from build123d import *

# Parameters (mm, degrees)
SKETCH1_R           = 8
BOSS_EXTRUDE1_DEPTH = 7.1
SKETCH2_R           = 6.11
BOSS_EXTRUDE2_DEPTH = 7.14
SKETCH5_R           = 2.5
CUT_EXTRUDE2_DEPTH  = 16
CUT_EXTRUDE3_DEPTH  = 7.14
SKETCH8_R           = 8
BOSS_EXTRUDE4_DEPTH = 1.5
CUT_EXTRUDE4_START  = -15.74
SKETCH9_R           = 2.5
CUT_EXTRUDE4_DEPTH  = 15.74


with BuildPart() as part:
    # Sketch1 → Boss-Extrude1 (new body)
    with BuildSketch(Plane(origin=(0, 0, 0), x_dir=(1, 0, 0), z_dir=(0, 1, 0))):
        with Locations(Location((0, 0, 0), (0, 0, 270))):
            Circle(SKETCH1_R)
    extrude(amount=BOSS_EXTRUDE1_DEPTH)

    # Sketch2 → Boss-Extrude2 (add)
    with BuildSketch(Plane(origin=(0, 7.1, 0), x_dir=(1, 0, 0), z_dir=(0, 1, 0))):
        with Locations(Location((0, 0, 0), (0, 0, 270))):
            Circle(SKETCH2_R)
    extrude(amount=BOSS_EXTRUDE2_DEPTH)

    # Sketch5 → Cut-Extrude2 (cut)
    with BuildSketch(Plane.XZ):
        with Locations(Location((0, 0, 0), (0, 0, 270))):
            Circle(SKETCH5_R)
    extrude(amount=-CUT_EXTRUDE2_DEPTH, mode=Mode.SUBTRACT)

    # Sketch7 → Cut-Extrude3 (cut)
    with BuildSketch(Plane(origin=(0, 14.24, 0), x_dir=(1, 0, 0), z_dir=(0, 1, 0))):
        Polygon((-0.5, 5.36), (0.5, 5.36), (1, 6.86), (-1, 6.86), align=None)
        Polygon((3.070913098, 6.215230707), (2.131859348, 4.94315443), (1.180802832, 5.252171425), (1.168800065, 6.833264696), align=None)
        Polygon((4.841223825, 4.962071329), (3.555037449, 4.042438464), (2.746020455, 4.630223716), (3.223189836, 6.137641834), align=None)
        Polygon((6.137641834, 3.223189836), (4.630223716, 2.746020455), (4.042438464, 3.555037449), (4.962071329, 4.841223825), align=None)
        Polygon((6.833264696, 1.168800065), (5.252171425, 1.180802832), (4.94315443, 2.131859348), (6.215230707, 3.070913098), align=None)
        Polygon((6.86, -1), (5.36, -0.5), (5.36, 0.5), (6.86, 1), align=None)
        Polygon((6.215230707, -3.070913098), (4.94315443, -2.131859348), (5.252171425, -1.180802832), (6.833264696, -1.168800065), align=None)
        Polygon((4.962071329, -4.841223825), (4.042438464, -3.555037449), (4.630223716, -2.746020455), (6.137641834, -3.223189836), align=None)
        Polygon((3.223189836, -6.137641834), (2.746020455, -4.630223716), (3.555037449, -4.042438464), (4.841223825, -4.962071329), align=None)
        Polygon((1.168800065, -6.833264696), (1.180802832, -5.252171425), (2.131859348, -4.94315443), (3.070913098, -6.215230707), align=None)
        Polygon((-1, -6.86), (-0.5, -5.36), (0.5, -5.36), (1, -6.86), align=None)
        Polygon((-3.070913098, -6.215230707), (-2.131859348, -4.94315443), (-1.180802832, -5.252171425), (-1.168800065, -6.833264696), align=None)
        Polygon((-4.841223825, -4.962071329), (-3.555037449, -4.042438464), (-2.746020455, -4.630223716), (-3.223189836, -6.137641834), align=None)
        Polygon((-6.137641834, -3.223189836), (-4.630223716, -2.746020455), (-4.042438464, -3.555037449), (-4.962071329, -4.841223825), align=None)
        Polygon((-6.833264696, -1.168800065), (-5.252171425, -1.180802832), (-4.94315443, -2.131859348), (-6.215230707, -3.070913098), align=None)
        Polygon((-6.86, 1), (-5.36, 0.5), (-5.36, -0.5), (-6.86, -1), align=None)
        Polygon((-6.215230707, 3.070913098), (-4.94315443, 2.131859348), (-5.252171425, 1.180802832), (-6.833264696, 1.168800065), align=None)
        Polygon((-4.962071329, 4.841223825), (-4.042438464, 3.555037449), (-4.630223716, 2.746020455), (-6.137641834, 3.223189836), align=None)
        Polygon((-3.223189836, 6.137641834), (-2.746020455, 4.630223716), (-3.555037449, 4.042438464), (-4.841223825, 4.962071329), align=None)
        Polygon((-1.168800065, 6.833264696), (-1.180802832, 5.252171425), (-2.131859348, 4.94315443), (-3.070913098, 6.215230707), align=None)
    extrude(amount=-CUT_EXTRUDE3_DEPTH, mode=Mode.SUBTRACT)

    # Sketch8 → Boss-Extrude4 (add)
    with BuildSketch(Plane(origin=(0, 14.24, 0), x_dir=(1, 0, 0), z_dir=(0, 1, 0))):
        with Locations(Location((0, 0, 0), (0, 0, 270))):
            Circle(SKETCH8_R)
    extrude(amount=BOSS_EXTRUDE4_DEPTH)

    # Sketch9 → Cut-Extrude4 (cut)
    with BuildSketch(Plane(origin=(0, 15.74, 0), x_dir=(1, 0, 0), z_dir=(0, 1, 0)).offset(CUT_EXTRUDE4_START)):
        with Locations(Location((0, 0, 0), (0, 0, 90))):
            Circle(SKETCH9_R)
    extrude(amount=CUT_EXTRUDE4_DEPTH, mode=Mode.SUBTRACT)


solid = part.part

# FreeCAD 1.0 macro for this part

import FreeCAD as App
import Part
import Sketcher
from FreeCAD import Vector
Q = App.Units.Quantity

doc = App.newDocument("Part")
body = doc.addObject("PartDesign::Body", "Body")

sketch1 = body.newObject("Sketcher::SketchObject", "Sketch")
sketch1.AttachmentSupport = (doc.getObject("XZ_Plane"), [""])
sketch1.MapMode = "FlatFace"
sketch1.addGeometry(Part.Circle(Vector(0, 0, 0), Vector(0, 0, 1), 8), False)
sketch1.addConstraint(Sketcher.Constraint("Coincident", 0, 3, -1, 1))
sketch1.addConstraint(Sketcher.Constraint("Diameter", 0, Q("16 mm")))
pad1 = body.newObject("PartDesign::Pad", "Pad")
pad1.Profile = sketch1
pad1.Length = 7.1
pad1.Reversed = True

sketch2 = body.newObject("Sketcher::SketchObject", "Sketch001")
sketch2.AttachmentSupport = (doc.getObject("XZ_Plane"), [""])
sketch2.MapMode = "FlatFace"
sketch2.AttachmentOffset = App.Placement(Vector(0, 0, -7.1), App.Rotation())
sketch2.addGeometry(Part.Circle(Vector(0, 0, 0), Vector(0, 0, 1), 6), False)
sketch2.addConstraint(Sketcher.Constraint("Coincident", 0, 3, -1, 1))
sketch2.addConstraint(Sketcher.Constraint("Diameter", 0, Q("12.22 mm")))
pad2 = body.newObject("PartDesign::Pad", "Pad001")
pad2.Profile = sketch2
pad2.Length = 7.14
pad2.Reversed = True

sketch3 = body.newObject("Sketcher::SketchObject", "Sketch002")
sketch3.AttachmentSupport = (doc.getObject("XZ_Plane"), [""])
sketch3.MapMode = "FlatFace"
sketch3.addGeometry(Part.Circle(Vector(0, 0, 0), Vector(0, 0, 1), 2.5), False)
sketch3.addConstraint(Sketcher.Constraint("Coincident", 0, 3, -1, 1))
sketch3.addConstraint(Sketcher.Constraint("Diameter", 0, Q("5 mm")))
pocket1 = body.newObject("PartDesign::Pocket", "Pocket")
pocket1.Profile = sketch3
pocket1.Length = 16

sketch4 = body.newObject("Sketcher::SketchObject", "Sketch003")
sketch4.AttachmentSupport = (doc.getObject("XZ_Plane"), [""])
sketch4.MapMode = "FlatFace"
sketch4.AttachmentOffset = App.Placement(Vector(0, 0, -14.24), App.Rotation())
sketch4.addGeometry(Part.LineSegment(Vector(-0.5, -5.4, 0), Vector(0.5, -5.4, 0)), False)
sketch4.addGeometry(Part.LineSegment(Vector(0.5, -5.4, 0), Vector(1, -6.9, 0)), False)
sketch4.addGeometry(Part.LineSegment(Vector(1, -6.9, 0), Vector(-1, -6.9, 0)), False)
sketch4.addGeometry(Part.LineSegment(Vector(-1, -6.9, 0), Vector(-0.5, -5.4, 0)), False)
sketch4.addGeometry(Part.LineSegment(Vector(2.1, -4.9, 0), Vector(3.1, -6.2, 0)), False)
sketch4.addGeometry(Part.LineSegment(Vector(3.1, -6.2, 0), Vector(1.2, -6.8, 0)), False)
sketch4.addGeometry(Part.LineSegment(Vector(1.2, -6.8, 0), Vector(1.2, -5.3, 0)), False)
sketch4.addGeometry(Part.LineSegment(Vector(1.2, -5.3, 0), Vector(2.1, -4.9, 0)), False)
sketch4.addGeometry(Part.LineSegment(Vector(3.6, -4, 0), Vector(4.8, -5, 0)), False)
sketch4.addGeometry(Part.LineSegment(Vector(4.8, -5, 0), Vector(3.2, -6.1, 0)), False)
sketch4.addGeometry(Part.LineSegment(Vector(3.2, -6.1, 0), Vector(2.7, -4.6, 0)), False)
sketch4.addGeometry(Part.LineSegment(Vector(2.7, -4.6, 0), Vector(3.6, -4, 0)), False)
sketch4.addGeometry(Part.LineSegment(Vector(4.6, -2.7, 0), Vector(6.1, -3.2, 0)), False)
sketch4.addGeometry(Part.LineSegment(Vector(6.1, -3.2, 0), Vector(5, -4.8, 0)), False)
sketch4.addGeometry(Part.LineSegment(Vector(5, -4.8, 0), Vector(4, -3.6, 0)), False)
sketch4.addGeometry(Part.LineSegment(Vector(4, -3.6, 0), Vector(4.6, -2.7, 0)), False)
sketch4.addGeometry(Part.LineSegment(Vector(5.3, -1.2, 0), Vector(6.8, -1.2, 0)), False)
sketch4.addGeometry(Part.LineSegment(Vector(6.8, -1.2, 0), Vector(6.2, -3.1, 0)), False)
sketch4.addGeometry(Part.LineSegment(Vector(6.2, -3.1, 0), Vector(4.9, -2.1, 0)), False)
sketch4.addGeometry(Part.LineSegment(Vector(4.9, -2.1, 0), Vector(5.3, -1.2, 0)), False)
sketch4.addGeometry(Part.LineSegment(Vector(5.4, 0.5, 0), Vector(6.9, 1, 0)), False)
sketch4.addGeometry(Part.LineSegment(Vector(6.9, 1, 0), Vector(6.9, -1, 0)), False)
sketch4.addGeometry(Part.LineSegment(Vector(6.9, -1, 0), Vector(5.4, -0.5, 0)), False)
sketch4.addGeometry(Part.LineSegment(Vector(5.4, -0.5, 0), Vector(5.4, 0.5, 0)), False)
sketch4.addGeometry(Part.LineSegment(Vector(4.9, 2.1, 0), Vector(6.2, 3.1, 0)), False)
sketch4.addGeometry(Part.LineSegment(Vector(6.2, 3.1, 0), Vector(6.8, 1.2, 0)), False)
sketch4.addGeometry(Part.LineSegment(Vector(6.8, 1.2, 0), Vector(5.3, 1.2, 0)), False)
sketch4.addGeometry(Part.LineSegment(Vector(5.3, 1.2, 0), Vector(4.9, 2.1, 0)), False)
sketch4.addGeometry(Part.LineSegment(Vector(4, 3.6, 0), Vector(5, 4.8, 0)), False)
sketch4.addGeometry(Part.LineSegment(Vector(5, 4.8, 0), Vector(6.1, 3.2, 0)), False)
sketch4.addGeometry(Part.LineSegment(Vector(6.1, 3.2, 0), Vector(4.6, 2.7, 0)), False)
sketch4.addGeometry(Part.LineSegment(Vector(4.6, 2.7, 0), Vector(4, 3.6, 0)), False)
sketch4.addGeometry(Part.LineSegment(Vector(2.7, 4.6, 0), Vector(3.2, 6.1, 0)), False)
sketch4.addGeometry(Part.LineSegment(Vector(3.2, 6.1, 0), Vector(4.8, 5, 0)), False)
sketch4.addGeometry(Part.LineSegment(Vector(4.8, 5, 0), Vector(3.6, 4, 0)), False)
sketch4.addGeometry(Part.LineSegment(Vector(3.6, 4, 0), Vector(2.7, 4.6, 0)), False)
sketch4.addGeometry(Part.LineSegment(Vector(1.2, 5.3, 0), Vector(1.2, 6.8, 0)), False)
sketch4.addGeometry(Part.LineSegment(Vector(1.2, 6.8, 0), Vector(3.1, 6.2, 0)), False)
sketch4.addGeometry(Part.LineSegment(Vector(3.1, 6.2, 0), Vector(2.1, 4.9, 0)), False)
sketch4.addGeometry(Part.LineSegment(Vector(2.1, 4.9, 0), Vector(1.2, 5.3, 0)), False)
sketch4.addGeometry(Part.LineSegment(Vector(-0.5, 5.4, 0), Vector(-1, 6.9, 0)), False)
sketch4.addGeometry(Part.LineSegment(Vector(-1, 6.9, 0), Vector(1, 6.9, 0)), False)
sketch4.addGeometry(Part.LineSegment(Vector(1, 6.9, 0), Vector(0.5, 5.4, 0)), False)
sketch4.addGeometry(Part.LineSegment(Vector(0.5, 5.4, 0), Vector(-0.5, 5.4, 0)), False)
sketch4.addGeometry(Part.LineSegment(Vector(-2.1, 4.9, 0), Vector(-3.1, 6.2, 0)), False)
sketch4.addGeometry(Part.LineSegment(Vector(-3.1, 6.2, 0), Vector(-1.2, 6.8, 0)), False)
sketch4.addGeometry(Part.LineSegment(Vector(-1.2, 6.8, 0), Vector(-1.2, 5.3, 0)), False)
sketch4.addGeometry(Part.LineSegment(Vector(-1.2, 5.3, 0), Vector(-2.1, 4.9, 0)), False)
sketch4.addGeometry(Part.LineSegment(Vector(-3.6, 4, 0), Vector(-4.8, 5, 0)), False)
sketch4.addGeometry(Part.LineSegment(Vector(-4.8, 5, 0), Vector(-3.2, 6.1, 0)), False)
sketch4.addGeometry(Part.LineSegment(Vector(-3.2, 6.1, 0), Vector(-2.7, 4.6, 0)), False)
sketch4.addGeometry(Part.LineSegment(Vector(-2.7, 4.6, 0), Vector(-3.6, 4, 0)), False)
sketch4.addGeometry(Part.LineSegment(Vector(-4.6, 2.7, 0), Vector(-6.1, 3.2, 0)), False)
sketch4.addGeometry(Part.LineSegment(Vector(-6.1, 3.2, 0), Vector(-5, 4.8, 0)), False)
sketch4.addGeometry(Part.LineSegment(Vector(-5, 4.8, 0), Vector(-4, 3.6, 0)), False)
sketch4.addGeometry(Part.LineSegment(Vector(-4, 3.6, 0), Vector(-4.6, 2.7, 0)), False)
sketch4.addGeometry(Part.LineSegment(Vector(-5.3, 1.2, 0), Vector(-6.8, 1.2, 0)), False)
sketch4.addGeometry(Part.LineSegment(Vector(-6.8, 1.2, 0), Vector(-6.2, 3.1, 0)), False)
sketch4.addGeometry(Part.LineSegment(Vector(-6.2, 3.1, 0), Vector(-4.9, 2.1, 0)), False)
sketch4.addGeometry(Part.LineSegment(Vector(-4.9, 2.1, 0), Vector(-5.3, 1.2, 0)), False)
sketch4.addGeometry(Part.LineSegment(Vector(-5.4, -0.5, 0), Vector(-6.9, -1, 0)), False)
sketch4.addGeometry(Part.LineSegment(Vector(-6.9, -1, 0), Vector(-6.9, 1, 0)), False)
sketch4.addGeometry(Part.LineSegment(Vector(-6.9, 1, 0), Vector(-5.4, 0.5, 0)), False)
sketch4.addGeometry(Part.LineSegment(Vector(-5.4, 0.5, 0), Vector(-5.4, -0.5, 0)), False)
sketch4.addGeometry(Part.LineSegment(Vector(-4.9, -2.1, 0), Vector(-6.2, -3.1, 0)), False)
sketch4.addGeometry(Part.LineSegment(Vector(-6.2, -3.1, 0), Vector(-6.8, -1.2, 0)), False)
sketch4.addGeometry(Part.LineSegment(Vector(-6.8, -1.2, 0), Vector(-5.3, -1.2, 0)), False)
sketch4.addGeometry(Part.LineSegment(Vector(-5.3, -1.2, 0), Vector(-4.9, -2.1, 0)), False)
sketch4.addGeometry(Part.LineSegment(Vector(-4, -3.6, 0), Vector(-5, -4.8, 0)), False)
sketch4.addGeometry(Part.LineSegment(Vector(-5, -4.8, 0), Vector(-6.1, -3.2, 0)), False)
sketch4.addGeometry(Part.LineSegment(Vector(-6.1, -3.2, 0), Vector(-4.6, -2.7, 0)), False)
sketch4.addGeometry(Part.LineSegment(Vector(-4.6, -2.7, 0), Vector(-4, -3.6, 0)), False)
sketch4.addGeometry(Part.LineSegment(Vector(-2.7, -4.6, 0), Vector(-3.2, -6.1, 0)), False)
sketch4.addGeometry(Part.LineSegment(Vector(-3.2, -6.1, 0), Vector(-4.8, -5, 0)), False)
sketch4.addGeometry(Part.LineSegment(Vector(-4.8, -5, 0), Vector(-3.6, -4, 0)), False)
sketch4.addGeometry(Part.LineSegment(Vector(-3.6, -4, 0), Vector(-2.7, -4.6, 0)), False)
sketch4.addGeometry(Part.LineSegment(Vector(-1.2, -5.3, 0), Vector(-1.2, -6.8, 0)), False)
sketch4.addGeometry(Part.LineSegment(Vector(-1.2, -6.8, 0), Vector(-3.1, -6.2, 0)), False)
sketch4.addGeometry(Part.LineSegment(Vector(-3.1, -6.2, 0), Vector(-2.1, -4.9, 0)), False)
sketch4.addGeometry(Part.LineSegment(Vector(-2.1, -4.9, 0), Vector(-1.2, -5.3, 0)), False)
sketch4.addConstraint(Sketcher.Constraint("Coincident", 0, 2, 1, 1))
sketch4.addConstraint(Sketcher.Constraint("Coincident", 1, 2, 2, 1))
sketch4.addConstraint(Sketcher.Constraint("Coincident", 2, 2, 3, 1))
sketch4.addConstraint(Sketcher.Constraint("Coincident", 3, 2, 0, 1))
sketch4.addConstraint(Sketcher.Constraint("Coincident", 4, 2, 5, 1))
sketch4.addConstraint(Sketcher.Constraint("Coincident", 5, 2, 6, 1))
sketch4.addConstraint(Sketcher.Constraint("Coincident", 6, 2, 7, 1))
sketch4.addConstraint(Sketcher.Constraint("Coincident", 7, 2, 4, 1))
sketch4.addConstraint(Sketcher.Constraint("Coincident", 8, 2, 9, 1))
sketch4.addConstraint(Sketcher.Constraint("Coincident", 9, 2, 10, 1))
sketch4.addConstraint(Sketcher.Constraint("Coincident", 10, 2, 11, 1))
sketch4.addConstraint(Sketcher.Constraint("Coincident", 11, 2, 8, 1))
sketch4.addConstraint(Sketcher.Constraint("Coincident", 12, 2, 13, 1))
sketch4.addConstraint(Sketcher.Constraint("Coincident", 13, 2, 14, 1))
sketch4.addConstraint(Sketcher.Constraint("Coincident", 14, 2, 15, 1))
sketch4.addConstraint(Sketcher.Constraint("Coincident", 15, 2, 12, 1))
sketch4.addConstraint(Sketcher.Constraint("Coincident", 16, 2, 17, 1))
sketch4.addConstraint(Sketcher.Constraint("Coincident", 17, 2, 18, 1))
sketch4.addConstraint(Sketcher.Constraint("Coincident", 18, 2, 19, 1))
sketch4.addConstraint(Sketcher.Constraint("Coincident", 19, 2, 16, 1))
sketch4.addConstraint(Sketcher.Constraint("Coincident", 20, 2, 21, 1))
sketch4.addConstraint(Sketcher.Constraint("Coincident", 21, 2, 22, 1))
sketch4.addConstraint(Sketcher.Constraint("Coincident", 22, 2, 23, 1))
sketch4.addConstraint(Sketcher.Constraint("Coincident", 23, 2, 20, 1))
sketch4.addConstraint(Sketcher.Constraint("Coincident", 24, 2, 25, 1))
sketch4.addConstraint(Sketcher.Constraint("Coincident", 25, 2, 26, 1))
sketch4.addConstraint(Sketcher.Constraint("Coincident", 26, 2, 27, 1))
sketch4.addConstraint(Sketcher.Constraint("Coincident", 27, 2, 24, 1))
sketch4.addConstraint(Sketcher.Constraint("Coincident", 28, 2, 29, 1))
sketch4.addConstraint(Sketcher.Constraint("Coincident", 29, 2, 30, 1))
sketch4.addConstraint(Sketcher.Constraint("Coincident", 30, 2, 31, 1))
sketch4.addConstraint(Sketcher.Constraint("Coincident", 31, 2, 28, 1))
sketch4.addConstraint(Sketcher.Constraint("Coincident", 32, 2, 33, 1))
sketch4.addConstraint(Sketcher.Constraint("Coincident", 33, 2, 34, 1))
sketch4.addConstraint(Sketcher.Constraint("Coincident", 34, 2, 35, 1))
sketch4.addConstraint(Sketcher.Constraint("Coincident", 35, 2, 32, 1))
sketch4.addConstraint(Sketcher.Constraint("Coincident", 36, 2, 37, 1))
sketch4.addConstraint(Sketcher.Constraint("Coincident", 37, 2, 38, 1))
sketch4.addConstraint(Sketcher.Constraint("Coincident", 38, 2, 39, 1))
sketch4.addConstraint(Sketcher.Constraint("Coincident", 39, 2, 36, 1))
sketch4.addConstraint(Sketcher.Constraint("Coincident", 40, 2, 41, 1))
sketch4.addConstraint(Sketcher.Constraint("Coincident", 41, 2, 42, 1))
sketch4.addConstraint(Sketcher.Constraint("Coincident", 42, 2, 43, 1))
sketch4.addConstraint(Sketcher.Constraint("Coincident", 43, 2, 40, 1))
sketch4.addConstraint(Sketcher.Constraint("Coincident", 44, 2, 45, 1))
sketch4.addConstraint(Sketcher.Constraint("Coincident", 45, 2, 46, 1))
sketch4.addConstraint(Sketcher.Constraint("Coincident", 46, 2, 47, 1))
sketch4.addConstraint(Sketcher.Constraint("Coincident", 47, 2, 44, 1))
sketch4.addConstraint(Sketcher.Constraint("Coincident", 48, 2, 49, 1))
sketch4.addConstraint(Sketcher.Constraint("Coincident", 49, 2, 50, 1))
sketch4.addConstraint(Sketcher.Constraint("Coincident", 50, 2, 51, 1))
sketch4.addConstraint(Sketcher.Constraint("Coincident", 51, 2, 48, 1))
sketch4.addConstraint(Sketcher.Constraint("Coincident", 52, 2, 53, 1))
sketch4.addConstraint(Sketcher.Constraint("Coincident", 53, 2, 54, 1))
sketch4.addConstraint(Sketcher.Constraint("Coincident", 54, 2, 55, 1))
sketch4.addConstraint(Sketcher.Constraint("Coincident", 55, 2, 52, 1))
sketch4.addConstraint(Sketcher.Constraint("Coincident", 56, 2, 57, 1))
sketch4.addConstraint(Sketcher.Constraint("Coincident", 57, 2, 58, 1))
sketch4.addConstraint(Sketcher.Constraint("Coincident", 58, 2, 59, 1))
sketch4.addConstraint(Sketcher.Constraint("Coincident", 59, 2, 56, 1))
sketch4.addConstraint(Sketcher.Constraint("Coincident", 60, 2, 61, 1))
sketch4.addConstraint(Sketcher.Constraint("Coincident", 61, 2, 62, 1))
sketch4.addConstraint(Sketcher.Constraint("Coincident", 62, 2, 63, 1))
sketch4.addConstraint(Sketcher.Constraint("Coincident", 63, 2, 60, 1))
sketch4.addConstraint(Sketcher.Constraint("Coincident", 64, 2, 65, 1))
sketch4.addConstraint(Sketcher.Constraint("Coincident", 65, 2, 66, 1))
sketch4.addConstraint(Sketcher.Constraint("Coincident", 66, 2, 67, 1))
sketch4.addConstraint(Sketcher.Constraint("Coincident", 67, 2, 64, 1))
sketch4.addConstraint(Sketcher.Constraint("Coincident", 68, 2, 69, 1))
sketch4.addConstraint(Sketcher.Constraint("Coincident", 69, 2, 70, 1))
sketch4.addConstraint(Sketcher.Constraint("Coincident", 70, 2, 71, 1))
sketch4.addConstraint(Sketcher.Constraint("Coincident", 71, 2, 68, 1))
sketch4.addConstraint(Sketcher.Constraint("Coincident", 72, 2, 73, 1))
sketch4.addConstraint(Sketcher.Constraint("Coincident", 73, 2, 74, 1))
sketch4.addConstraint(Sketcher.Constraint("Coincident", 74, 2, 75, 1))
sketch4.addConstraint(Sketcher.Constraint("Coincident", 75, 2, 72, 1))
sketch4.addConstraint(Sketcher.Constraint("Coincident", 76, 2, 77, 1))
sketch4.addConstraint(Sketcher.Constraint("Coincident", 77, 2, 78, 1))
sketch4.addConstraint(Sketcher.Constraint("Coincident", 78, 2, 79, 1))
sketch4.addConstraint(Sketcher.Constraint("Coincident", 79, 2, 76, 1))
sketch4.addConstraint(Sketcher.Constraint("Horizontal", 0))
sketch4.addConstraint(Sketcher.Constraint("Horizontal", 2))
sketch4.addConstraint(Sketcher.Constraint("Vertical", 21))
sketch4.addConstraint(Sketcher.Constraint("Vertical", 23))
sketch4.addConstraint(Sketcher.Constraint("Horizontal", 41))
sketch4.addConstraint(Sketcher.Constraint("Horizontal", 43))
sketch4.addConstraint(Sketcher.Constraint("Vertical", 61))
sketch4.addConstraint(Sketcher.Constraint("Vertical", 63))
sketch4.addConstraint(Sketcher.Constraint("Symmetric", 1, 2, 40, 2, -1, 1))
sketch4.addConstraint(Sketcher.Constraint("Symmetric", 3, 2, 42, 2, -1, 1))
sketch4.addConstraint(Sketcher.Constraint("Symmetric", 4, 2, 44, 2, -1, 1))
sketch4.addConstraint(Sketcher.Constraint("Symmetric", 5, 2, 45, 2, -1, 1))
sketch4.addConstraint(Sketcher.Constraint("Symmetric", 6, 2, 46, 2, -1, 1))
sketch4.addConstraint(Sketcher.Constraint("Symmetric", 7, 2, 47, 2, -1, 1))
sketch4.addConstraint(Sketcher.Constraint("Symmetric", 8, 2, 48, 2, -1, 1))
sketch4.addConstraint(Sketcher.Constraint("Symmetric", 9, 2, 49, 2, -1, 1))
sketch4.addConstraint(Sketcher.Constraint("Symmetric", 10, 2, 50, 2, -1, 1))
sketch4.addConstraint(Sketcher.Constraint("Symmetric", 11, 2, 51, 2, -1, 1))
sketch4.addConstraint(Sketcher.Constraint("Symmetric", 12, 2, 52, 2, -1, 1))
sketch4.addConstraint(Sketcher.Constraint("Symmetric", 13, 2, 53, 2, -1, 1))
sketch4.addConstraint(Sketcher.Constraint("Symmetric", 14, 2, 54, 2, -1, 1))
sketch4.addConstraint(Sketcher.Constraint("Symmetric", 15, 2, 55, 2, -1, 1))
sketch4.addConstraint(Sketcher.Constraint("Symmetric", 16, 2, 56, 2, -1, 1))
sketch4.addConstraint(Sketcher.Constraint("Symmetric", 17, 2, 57, 2, -1, 1))
sketch4.addConstraint(Sketcher.Constraint("Symmetric", 18, 2, 58, 2, -1, 1))
sketch4.addConstraint(Sketcher.Constraint("Symmetric", 19, 2, 59, 2, -1, 1))
sketch4.addConstraint(Sketcher.Constraint("Symmetric", 20, 2, 60, 2, -1, 1))
sketch4.addConstraint(Sketcher.Constraint("Symmetric", 22, 2, 62, 2, -1, 1))
sketch4.addConstraint(Sketcher.Constraint("Symmetric", 24, 2, 64, 2, -1, 1))
sketch4.addConstraint(Sketcher.Constraint("Symmetric", 25, 2, 65, 2, -1, 1))
sketch4.addConstraint(Sketcher.Constraint("Symmetric", 26, 2, 66, 2, -1, 1))
sketch4.addConstraint(Sketcher.Constraint("Symmetric", 27, 2, 67, 2, -1, 1))
sketch4.addConstraint(Sketcher.Constraint("Symmetric", 28, 2, 68, 2, -1, 1))
sketch4.addConstraint(Sketcher.Constraint("Symmetric", 29, 2, 69, 2, -1, 1))
sketch4.addConstraint(Sketcher.Constraint("Symmetric", 30, 2, 70, 2, -1, 1))
sketch4.addConstraint(Sketcher.Constraint("Symmetric", 31, 2, 71, 2, -1, 1))
sketch4.addConstraint(Sketcher.Constraint("Symmetric", 32, 2, 72, 2, -1, 1))
sketch4.addConstraint(Sketcher.Constraint("Symmetric", 33, 2, 73, 2, -1, 1))
sketch4.addConstraint(Sketcher.Constraint("Symmetric", 34, 2, 74, 2, -1, 1))
sketch4.addConstraint(Sketcher.Constraint("Symmetric", 35, 2, 75, 2, -1, 1))
sketch4.addConstraint(Sketcher.Constraint("Symmetric", 36, 2, 76, 2, -1, 1))
sketch4.addConstraint(Sketcher.Constraint("Symmetric", 37, 2, 77, 2, -1, 1))
sketch4.addConstraint(Sketcher.Constraint("Symmetric", 38, 2, 78, 2, -1, 1))
sketch4.addConstraint(Sketcher.Constraint("Symmetric", 39, 2, 79, 2, -1, 1))
sketch4.addConstraint(Sketcher.Constraint("Symmetric", 37, 2, 44, 2, -2))
sketch4.addConstraint(Sketcher.Constraint("Symmetric", 36, 2, 45, 2, -2))
sketch4.addConstraint(Sketcher.Constraint("Symmetric", 39, 2, 46, 2, -2))
sketch4.addConstraint(Sketcher.Constraint("Symmetric", 38, 2, 47, 2, -2))
sketch4.addConstraint(Sketcher.Constraint("Symmetric", 33, 2, 48, 2, -2))
sketch4.addConstraint(Sketcher.Constraint("Symmetric", 32, 2, 49, 2, -2))
sketch4.addConstraint(Sketcher.Constraint("Symmetric", 35, 2, 50, 2, -2))
sketch4.addConstraint(Sketcher.Constraint("Symmetric", 34, 2, 51, 2, -2))
sketch4.addConstraint(Sketcher.Constraint("Symmetric", 29, 2, 52, 2, -2))
sketch4.addConstraint(Sketcher.Constraint("Symmetric", 28, 2, 53, 2, -2))
sketch4.addConstraint(Sketcher.Constraint("Symmetric", 31, 2, 54, 2, -2))
sketch4.addConstraint(Sketcher.Constraint("Symmetric", 30, 2, 55, 2, -2))
sketch4.addConstraint(Sketcher.Constraint("Symmetric", 25, 2, 56, 2, -2))
sketch4.addConstraint(Sketcher.Constraint("Symmetric", 24, 2, 57, 2, -2))
sketch4.addConstraint(Sketcher.Constraint("Symmetric", 27, 2, 58, 2, -2))
sketch4.addConstraint(Sketcher.Constraint("Symmetric", 26, 2, 59, 2, -2))
sketch4.addConstraint(Sketcher.Constraint("Parallel", 5, 7))
sketch4.addConstraint(Sketcher.Constraint("Parallel", 9, 11))
sketch4.addConstraint(Sketcher.Constraint("Parallel", 13, 15))
sketch4.addConstraint(Sketcher.Constraint("Parallel", 17, 19))
sketch4.addConstraint(Sketcher.Constraint("Perpendicular", 1, 20))
sketch4.addConstraint(Sketcher.Constraint("Perpendicular", 3, 22))
sketch4.addConstraint(Sketcher.Constraint("Perpendicular", 4, 24))
sketch4.addConstraint(Sketcher.Constraint("Perpendicular", 7, 25))
sketch4.addConstraint(Sketcher.Constraint("Perpendicular", 6, 26))
sketch4.addConstraint(Sketcher.Constraint("Perpendicular", 8, 28))
sketch4.addConstraint(Sketcher.Constraint("Perpendicular", 11, 29))
sketch4.addConstraint(Sketcher.Constraint("Perpendicular", 10, 30))
sketch4.addConstraint(Sketcher.Constraint("Perpendicular", 20, 40))
sketch4.addConstraint(Sketcher.Constraint("Perpendicular", 22, 42))
sketch4.addConstraint(Sketcher.Constraint("Perpendicular", 40, 60))
sketch4.addConstraint(Sketcher.Constraint("Perpendicular", 42, 62))
sketch4.addConstraint(Sketcher.Constraint("Horizontal", 21, 2, 60, 2))
sketch4.addConstraint(Sketcher.Constraint("Horizontal", 23, 2, 62, 2))
sketch4.addConstraint(Sketcher.Constraint("Vertical", 2, 2, 40, 2))
sketch4.addConstraint(Sketcher.Constraint("Equal", 41, 21))
sketch4.addConstraint(Sketcher.Constraint("Equal", 43, 23))
sketch4.addConstraint(Sketcher.Constraint("Equal", 3, 4))
sketch4.addConstraint(Sketcher.Constraint("Equal", 4, 6))
sketch4.addConstraint(Sketcher.Constraint("Equal", 6, 8))
sketch4.addConstraint(Sketcher.Constraint("Equal", 5, 9))
sketch4.addConstraint(Sketcher.Constraint("Equal", 8, 10))
sketch4.addConstraint(Sketcher.Constraint("Equal", 7, 11))
sketch4.addConstraint(Sketcher.Constraint("Equal", 10, 12))
sketch4.addConstraint(Sketcher.Constraint("Equal", 9, 13))
sketch4.addConstraint(Sketcher.Constraint("Equal", 14, 16))
sketch4.addConstraint(Sketcher.Constraint("Equal", 13, 17))
sketch4.addConstraint(Sketcher.Constraint("DistanceX", 0, 1, 0, 2, Q("1 mm")))
sketch4.addConstraint(Sketcher.Constraint("DistanceX", 2, 2, 2, 1, Q("2 mm")))
sketch4.addConstraint(Sketcher.Constraint("Angle", 5, Q("-162 deg")))
sketch4.addConstraint(Sketcher.Constraint("Angle", 9, Q("-144 deg")))
sketch4.addConstraint(Sketcher.Constraint("Distance", 5, Q("2 mm")))
sketch4.addConstraint(Sketcher.Constraint("Distance", 7, Q("1 mm")))
sketch4.addConstraint(Sketcher.Constraint("DistanceY", 0, 2, -1, 1, Q("5.36 mm")))
sketch4.addConstraint(Sketcher.Constraint("DistanceY", 1, 2, -1, 1, Q("6.86 mm")))
sketch4.addConstraint(Sketcher.Constraint("DistanceX", -1, 1, 20, 2, Q("6.86 mm")))
sketch4.addConstraint(Sketcher.Constraint("DistanceX", -1, 1, 5, 2, Q("1.1688 mm")))
sketch4.addConstraint(Sketcher.Constraint("DistanceY", 16, 2, -1, 1, Q("1.1688 mm")))
sketch4.addConstraint(Sketcher.Constraint("DistanceY", 4, 2, -1, 1, Q("6.215231 mm")))
sketch4.addConstraint(Sketcher.Constraint("DistanceY", 8, 2, -1, 1, Q("4.962071 mm")))
sketch4.addConstraint(Sketcher.Constraint("DistanceX", -1, 1, 9, 2, Q("3.22319 mm")))
sketch4.addConstraint(Sketcher.Constraint("DistanceX", -1, 1, 12, 2, Q("6.137642 mm")))
sketch4.addConstraint(Sketcher.Constraint("DistanceY", 12, 2, -1, 1, Q("3.22319 mm")))
sketch4.addConstraint(Sketcher.Constraint("DistanceX", -1, 1, 17, 2, Q("6.215231 mm")))
pocket2 = body.newObject("PartDesign::Pocket", "Pocket001")
pocket2.Profile = sketch4
pocket2.Length = 7.14
pocket2.Reversed = True

sketch5 = body.newObject("Sketcher::SketchObject", "Sketch004")
sketch5.AttachmentSupport = (doc.getObject("XZ_Plane"), [""])
sketch5.MapMode = "FlatFace"
sketch5.AttachmentOffset = App.Placement(Vector(0, 0, -14.24), App.Rotation())
sketch5.addGeometry(Part.Circle(Vector(0, 0, 0), Vector(0, 0, 1), 8), False)
sketch5.addConstraint(Sketcher.Constraint("Coincident", 0, 3, -1, 1))
sketch5.addConstraint(Sketcher.Constraint("Diameter", 0, Q("16 mm")))
pad3 = body.newObject("PartDesign::Pad", "Pad002")
pad3.Profile = sketch5
pad3.Length = 1.5
pad3.Reversed = True

sketch6 = body.newObject("Sketcher::SketchObject", "Sketch005")
sketch6.AttachmentSupport = (doc.getObject("XZ_Plane"), [""])
sketch6.MapMode = "FlatFace"
sketch6.addGeometry(Part.Circle(Vector(0, 0, 0), Vector(0, 0, 1), 2.5), False)
sketch6.addConstraint(Sketcher.Constraint("Coincident", 0, 3, -1, 1))
sketch6.addConstraint(Sketcher.Constraint("Diameter", 0, Q("5 mm")))
pocket3 = body.newObject("PartDesign::Pocket", "Pocket002")
pocket3.Profile = sketch6
pocket3.Length = 15.74

doc.recompute()
